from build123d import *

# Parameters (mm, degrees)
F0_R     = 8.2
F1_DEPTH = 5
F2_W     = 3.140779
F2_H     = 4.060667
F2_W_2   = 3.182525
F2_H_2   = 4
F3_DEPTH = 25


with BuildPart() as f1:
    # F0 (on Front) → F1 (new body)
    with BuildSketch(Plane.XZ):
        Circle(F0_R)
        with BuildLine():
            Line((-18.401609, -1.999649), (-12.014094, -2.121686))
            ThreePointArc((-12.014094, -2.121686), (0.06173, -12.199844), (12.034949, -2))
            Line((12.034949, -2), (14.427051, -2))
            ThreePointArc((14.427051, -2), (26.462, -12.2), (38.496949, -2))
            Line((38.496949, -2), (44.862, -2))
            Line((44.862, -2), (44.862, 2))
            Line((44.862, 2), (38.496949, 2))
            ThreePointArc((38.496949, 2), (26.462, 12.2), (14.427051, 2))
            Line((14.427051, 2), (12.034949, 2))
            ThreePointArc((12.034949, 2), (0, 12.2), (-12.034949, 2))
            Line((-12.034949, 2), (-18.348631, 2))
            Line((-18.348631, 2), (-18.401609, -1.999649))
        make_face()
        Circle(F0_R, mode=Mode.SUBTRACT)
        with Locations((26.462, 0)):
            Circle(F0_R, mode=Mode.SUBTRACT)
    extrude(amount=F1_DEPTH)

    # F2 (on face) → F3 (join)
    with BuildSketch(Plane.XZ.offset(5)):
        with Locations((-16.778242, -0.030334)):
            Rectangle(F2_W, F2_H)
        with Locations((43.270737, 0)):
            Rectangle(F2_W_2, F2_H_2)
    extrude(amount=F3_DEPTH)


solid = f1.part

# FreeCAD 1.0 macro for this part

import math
import FreeCAD as App
import Part
import Sketcher

V = App.Vector


def add_polygon(sketch, points):
    """Adds a closed chain of lines whose ends are joined by coincident constraints."""
    first, n = sketch.GeometryCount, len(points)
    for a, b in zip(points, points[1:] + points[:1]):
        sketch.addGeometry(Part.LineSegment(App.Vector(*a, 0), App.Vector(*b, 0)), False)
    for i in range(n):
        sketch.addConstraint(Sketcher.Constraint("Coincident", first + i, 2, first + (i + 1) % n, 1))

doc = App.newDocument("Part")
body = doc.addObject("PartDesign::Body", "Body")

# Sketch on XZ plane
sketch1 = body.newObject("Sketcher::SketchObject", "Sketch")
sketch1.AttachmentSupport = (doc.getObject("XZ_Plane"), [""])
sketch1.MapMode = "FlatFace"
sketch1.addGeometry([
    Part.LineSegment(V(-18.4, -2, 0), V(-12, -2.1, 0)),  # 0
    Part.ArcOfCircle(Part.Circle(V(0, 0, 0), V(0, 0, 1), 12.2), math.radians(-170), math.radians(-9)),  # 1
    Part.LineSegment(V(12, -2, 0), V(14.4, -2, 0)),  # 2
    Part.ArcOfCircle(Part.Circle(V(26.5, 0, 0), V(0, 0, 1), 12.2), math.radians(-171), math.radians(-9)),  # 3
    Part.LineSegment(V(38.5, -2, 0), V(44.9, -2, 0)),  # 4
    Part.LineSegment(V(44.9, -2, 0), V(44.9, 2, 0)),  # 5
    Part.LineSegment(V(44.9, 2, 0), V(38.5, 2, 0)),  # 6
    Part.ArcOfCircle(Part.Circle(V(26.5, 0, 0), V(0, 0, 1), 12.2), math.radians(9), math.radians(171)),  # 7
    Part.LineSegment(V(14.4, 2, 0), V(12, 2, 0)),  # 8
    Part.ArcOfCircle(Part.Circle(V(0, 0, 0), V(0, 0, 1), 12.2), math.radians(9), math.radians(171)),  # 9
    Part.LineSegment(V(-12, 2, 0), V(-18.3, 2, 0)),  # 10
    Part.LineSegment(V(-18.3, 2, 0), V(-18.4, -2, 0)),  # 11
    Part.Circle(V(0, 0, 0), V(0, 0, 1), 8.2),  # 12
    Part.Circle(V(26.5, 0, 0), V(0, 0, 1), 8.2),  # 13
], False)
sketch1.addConstraint([
    Sketcher.Constraint("Coincident", 0, 2, 1, 1),
    Sketcher.Constraint("Coincident", 1, 2, 2, 1),
    Sketcher.Constraint("Coincident", 2, 2, 3, 1),
    Sketcher.Constraint("Coincident", 3, 2, 4, 1),
    Sketcher.Constraint("Coincident", 4, 2, 5, 1),
    Sketcher.Constraint("Coincident", 5, 2, 6, 1),
    Sketcher.Constraint("Coincident", 6, 2, 7, 1),
    Sketcher.Constraint("Coincident", 7, 2, 8, 1),
    Sketcher.Constraint("Coincident", 8, 2, 9, 1),
    Sketcher.Constraint("Coincident", 9, 2, 10, 1),
    Sketcher.Constraint("Coincident", 10, 2, 11, 1),
    Sketcher.Constraint("Coincident", 11, 2, 0, 1),
    Sketcher.Constraint("Horizontal", 2),
    Sketcher.Constraint("Horizontal", 4),
    Sketcher.Constraint("Vertical", 5),
    Sketcher.Constraint("Horizontal", 6),
    Sketcher.Constraint("Horizontal", 8),
    Sketcher.Constraint("Horizontal", 10),
    Sketcher.Constraint("Coincident", 1, 3, -1, 1),
    Sketcher.Constraint("Coincident", 9, 3, -1, 1),
    Sketcher.Constraint("Coincident", 12, 3, -1, 1),
    Sketcher.Constraint("Coincident", 7, 3, 3, 3),
    Sketcher.Constraint("Coincident", 13, 3, 3, 3),
    Sketcher.Constraint("Equal", 1, 3),
    Sketcher.Constraint("Equal", 3, 7),
    Sketcher.Constraint("Equal", 7, 9),
    Sketcher.Constraint("Equal", 12, 13),
    Sketcher.Constraint("Symmetric", 3, 2, 6, 2, -1),
    Sketcher.Constraint("Horizontal", 2, 2, 3, 2),
    Sketcher.Constraint("Horizontal", 6, 2, 7, 2),
    Sketcher.Constraint("Horizontal", 8, 2, 9, 2),
    Sketcher.Constraint("Diameter", 12, 16.4),
    Sketcher.Constraint("Radius", 1, 12.2),
    Sketcher.Constraint("DistanceY", 5, 1, 5, 2, 4.0),
    Sketcher.Constraint("Distance", 11, 4.0),
    Sketcher.Constraint("DistanceX", 3, 3, 4, 2, 18.4),
    Sketcher.Constraint("DistanceX", -1, 1, 3, 3, 26.462),
    Sketcher.Constraint("Distance", 0, 6.388681),
    Sketcher.Constraint("DistanceX", 10, 2, 10, 1, 6.313682),
    Sketcher.Constraint("DistanceX", 11, 2, -1, 1, 18.401609),
])
pad1 = body.newObject("PartDesign::Pad", "Pad")
pad1.Profile = sketch1
pad1.Length = 5

# Sketch on XZ plane
sketch2 = body.newObject("Sketcher::SketchObject", "Sketch001")
sketch2.AttachmentSupport = (doc.getObject("XZ_Plane"), [""])
sketch2.MapMode = "FlatFace"
sketch2.AttachmentOffset = App.Placement(V(0, 0, 5), App.Rotation())
add_polygon(sketch2, [(-18.3, 2), (-18.3, -2.1), (-15.2, -2.1), (-15.2, 2)])  # lines 0-3
add_polygon(sketch2, [(41.7, 2), (41.7, -2), (44.9, -2), (44.9, 2)])  # lines 4-7
sketch2.addConstraint([
    Sketcher.Constraint("Vertical", 0),
    Sketcher.Constraint("Horizontal", 1),
    Sketcher.Constraint("Vertical", 2),
    Sketcher.Constraint("Horizontal", 3),
    Sketcher.Constraint("Vertical", 4),
    Sketcher.Constraint("Horizontal", 5),
    Sketcher.Constraint("Vertical", 6),
    Sketcher.Constraint("Horizontal", 7),
    Sketcher.Constraint("Horizontal", 3, 2, 6, 2),
    Sketcher.Constraint("DistanceY", 4, 2, 4, 1, 4.0),
    Sketcher.Constraint("DistanceY", -1, 1, 2, 2, 1.999999),
    Sketcher.Constraint("DistanceX", -1, 1, 5, 2, 44.862),
    Sketcher.Constraint("DistanceX", 1, 1, 1, 2, 3.140779),
    Sketcher.Constraint("DistanceX", 5, 1, 5, 2, 3.182525),
    Sketcher.Constraint("DistanceY", 0, 2, 0, 1, 4.060667),
    Sketcher.Constraint("DistanceX", 0, 2, -1, 1, 18.348631),
])
pad2 = body.newObject("PartDesign::Pad", "Pad001")
pad2.Profile = sketch2
pad2.Length = 25

doc.recompute()
